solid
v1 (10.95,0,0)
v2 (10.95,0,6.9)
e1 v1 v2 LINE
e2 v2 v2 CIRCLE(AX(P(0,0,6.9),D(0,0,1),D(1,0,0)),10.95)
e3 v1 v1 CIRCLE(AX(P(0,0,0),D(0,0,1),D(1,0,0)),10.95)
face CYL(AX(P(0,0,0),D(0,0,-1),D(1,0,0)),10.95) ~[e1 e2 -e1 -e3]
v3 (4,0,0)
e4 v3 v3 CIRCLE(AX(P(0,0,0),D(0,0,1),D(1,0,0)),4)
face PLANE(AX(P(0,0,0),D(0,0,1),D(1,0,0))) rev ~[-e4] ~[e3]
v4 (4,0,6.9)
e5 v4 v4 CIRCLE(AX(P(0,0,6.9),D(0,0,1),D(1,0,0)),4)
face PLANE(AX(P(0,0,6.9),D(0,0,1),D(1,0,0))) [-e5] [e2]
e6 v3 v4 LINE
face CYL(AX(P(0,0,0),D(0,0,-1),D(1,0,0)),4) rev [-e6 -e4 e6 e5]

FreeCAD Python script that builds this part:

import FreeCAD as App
import Part
import Sketcher

V = App.Vector
Q = App.Units.Quantity

doc = App.newDocument("Part")
body = doc.addObject("PartDesign::Body", "Body")

sketch1 = body.newObject("Sketcher::SketchObject", "Sketch")
sketch1.AttachmentSupport = (doc.getObject("XY_Plane"), [""])
sketch1.MapMode = "FlatFace"
sketch1.addGeometry(Part.Circle(V(0, 0, 0), V(0, 0, 1), 10.9), False)
sketch1.addGeometry(Part.Circle(V(0, 0, 0), V(0, 0, 1), 4), False)
sketch1.addConstraint(Sketcher.Constraint("Coincident", 0, 3, -1, 1))
sketch1.addConstraint(Sketcher.Constraint("Coincident", 1, 3, -1, 1))
sketch1.addConstraint(Sketcher.Constraint("Diameter", 1, Q("8 mm")))
sketch1.addConstraint(Sketcher.Constraint("Diameter", 0, Q("21.9 mm")))
pad1 = body.newObject("PartDesign::Pad", "Pad")
pad1.Profile = sketch1
pad1.Length = 6.9

doc.recompute()
